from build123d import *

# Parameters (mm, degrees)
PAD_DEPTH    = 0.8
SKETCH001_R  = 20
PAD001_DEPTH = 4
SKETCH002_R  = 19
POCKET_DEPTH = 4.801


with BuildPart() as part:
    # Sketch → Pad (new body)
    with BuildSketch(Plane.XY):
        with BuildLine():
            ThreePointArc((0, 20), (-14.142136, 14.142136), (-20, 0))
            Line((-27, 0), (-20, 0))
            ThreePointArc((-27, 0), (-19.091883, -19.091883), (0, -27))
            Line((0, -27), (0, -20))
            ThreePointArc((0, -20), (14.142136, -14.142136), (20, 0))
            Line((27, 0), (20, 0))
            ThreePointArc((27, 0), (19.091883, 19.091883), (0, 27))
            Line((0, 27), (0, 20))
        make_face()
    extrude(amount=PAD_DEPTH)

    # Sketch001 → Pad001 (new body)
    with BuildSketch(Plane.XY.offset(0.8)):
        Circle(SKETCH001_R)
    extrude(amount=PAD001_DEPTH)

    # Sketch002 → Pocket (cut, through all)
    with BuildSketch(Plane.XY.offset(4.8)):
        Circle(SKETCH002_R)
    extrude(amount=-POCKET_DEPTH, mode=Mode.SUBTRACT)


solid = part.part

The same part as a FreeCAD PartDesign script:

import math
import FreeCAD as App
import Part
import Sketcher

doc = App.newDocument("Part")
body = doc.addObject("PartDesign::Body", "Body")

# Sketch on XY plane
sketch1 = body.newObject("Sketcher::SketchObject", "Sketch")
sketch1.AttachmentSupport = (doc.getObject("XY_Plane"), [""])
sketch1.MapMode = "FlatFace"
sketch1.addGeometry(Part.ArcOfCircle(Part.Circle(App.Vector(-0.000001, 0.000001, 0), App.Vector(0, 0, 1), 19.999999), math.radians(89.999996), math.radians(180.000004)), False)
sketch1.addGeometry(Part.LineSegment(App.Vector(-20, 0, 0), App.Vector(-27, 0, 0)), False)
sketch1.addGeometry(Part.ArcOfCircle(Part.Circle(App.Vector(0, 0, 0), App.Vector(0, 0, 1), 27), math.radians(-179.999999), math.radians(-90.000001)), False)
sketch1.addGeometry(Part.LineSegment(App.Vector(0, -27, 0), App.Vector(0, -20, 0)), False)
sketch1.addGeometry(Part.ArcOfCircle(Part.Circle(App.Vector(0.000001, -0.000001, 0), App.Vector(0, 0, 1), 19.999999), math.radians(-90.000004), math.radians(0.000004)), False)
sketch1.addGeometry(Part.LineSegment(App.Vector(20, 0, 0), App.Vector(27, 0, 0)), False)
sketch1.addGeometry(Part.ArcOfCircle(Part.Circle(App.Vector(0, 0, 0), App.Vector(0, 0, 1), 27), math.radians(0.000001), math.radians(89.999999)), False)
sketch1.addGeometry(Part.LineSegment(App.Vector(0, 27, 0), App.Vector(0, 20, 0)), False)
sketch1.addConstraint(Sketcher.Constraint("Coincident", 0, 2, 1, 1))
sketch1.addConstraint(Sketcher.Constraint("Coincident", 1, 2, 2, 1))
sketch1.addConstraint(Sketcher.Constraint("Coincident", 2, 2, 3, 1))
sketch1.addConstraint(Sketcher.Constraint("Coincident", 3, 2, 4, 1))
sketch1.addConstraint(Sketcher.Constraint("Coincident", 4, 2, 5, 1))
sketch1.addConstraint(Sketcher.Constraint("Coincident", 5, 2, 6, 1))
sketch1.addConstraint(Sketcher.Constraint("Coincident", 6, 2, 7, 1))
sketch1.addConstraint(Sketcher.Constraint("Coincident", 7, 2, 0, 1))
sketch1.addConstraint(Sketcher.Constraint("Horizontal", 1))
sketch1.addConstraint(Sketcher.Constraint("Vertical", 3))
sketch1.addConstraint(Sketcher.Constraint("Horizontal", 5))
sketch1.addConstraint(Sketcher.Constraint("Vertical", 7))
sketch1.addConstraint(Sketcher.Constraint("Coincident", 0, 3, -1, 1))
sketch1.addConstraint(Sketcher.Constraint("Coincident", 2, 3, -1, 1))
sketch1.addConstraint(Sketcher.Constraint("Coincident", 4, 3, -1, 1))
sketch1.addConstraint(Sketcher.Constraint("Coincident", 6, 3, -1, 1))
sketch1.addConstraint(Sketcher.Constraint("Equal", 0, 4))
sketch1.addConstraint(Sketcher.Constraint("Equal", 2, 6))
sketch1.addConstraint(Sketcher.Constraint("PointOnObject", 0, 2, -1))
sketch1.addConstraint(Sketcher.Constraint("PointOnObject", 2, 2, -2))
sketch1.addConstraint(Sketcher.Constraint("PointOnObject", 4, 2, -1))
sketch1.addConstraint(Sketcher.Constraint("PointOnObject", 6, 2, -2))
sketch1.addConstraint(Sketcher.Constraint("Radius", 0, 19.999999))
sketch1.addConstraint(Sketcher.Constraint("Radius", 2, 27.0))
pad1 = body.newObject("PartDesign::Pad", "Pad")
pad1.Profile = sketch1
pad1.Length = 0.8

# Sketch on XY plane
sketch2 = body.newObject("Sketcher::SketchObject", "Sketch001")
sketch2.AttachmentSupport = (doc.getObject("XY_Plane"), [""])
sketch2.MapMode = "FlatFace"
sketch2.AttachmentOffset = App.Placement(App.Vector(0, 0, 0.8), App.Rotation())
sketch2.addGeometry(Part.Circle(App.Vector(0, 0, 0), App.Vector(0, 0, 1), 20), False)
sketch2.addConstraint(Sketcher.Constraint("Coincident", 0, 3, -1, 1))
sketch2.addConstraint(Sketcher.Constraint("Diameter", 0, 40.0))
pad2 = body.newObject("PartDesign::Pad", "Pad001")
pad2.Profile = sketch2
pad2.Length = 4

# Sketch on XY plane
sketch3 = body.newObject("Sketcher::SketchObject", "Sketch002")
sketch3.AttachmentSupport = (doc.getObject("XY_Plane"), [""])
sketch3.MapMode = "FlatFace"
sketch3.AttachmentOffset = App.Placement(App.Vector(0, 0, 4.8), App.Rotation())
sketch3.addGeometry(Part.Circle(App.Vector(0, 0, 0), App.Vector(0, 0, 1), 19), False)
sketch3.addConstraint(Sketcher.Constraint("Coincident", 0, 3, -1, 1))
sketch3.addConstraint(Sketcher.Constraint("Diameter", 0, 38.0))
pocket1 = body.newObject("PartDesign::Pocket", "Pocket")
pocket1.Profile = sketch3
pocket1.Type = "ThroughAll"

doc.recompute()
